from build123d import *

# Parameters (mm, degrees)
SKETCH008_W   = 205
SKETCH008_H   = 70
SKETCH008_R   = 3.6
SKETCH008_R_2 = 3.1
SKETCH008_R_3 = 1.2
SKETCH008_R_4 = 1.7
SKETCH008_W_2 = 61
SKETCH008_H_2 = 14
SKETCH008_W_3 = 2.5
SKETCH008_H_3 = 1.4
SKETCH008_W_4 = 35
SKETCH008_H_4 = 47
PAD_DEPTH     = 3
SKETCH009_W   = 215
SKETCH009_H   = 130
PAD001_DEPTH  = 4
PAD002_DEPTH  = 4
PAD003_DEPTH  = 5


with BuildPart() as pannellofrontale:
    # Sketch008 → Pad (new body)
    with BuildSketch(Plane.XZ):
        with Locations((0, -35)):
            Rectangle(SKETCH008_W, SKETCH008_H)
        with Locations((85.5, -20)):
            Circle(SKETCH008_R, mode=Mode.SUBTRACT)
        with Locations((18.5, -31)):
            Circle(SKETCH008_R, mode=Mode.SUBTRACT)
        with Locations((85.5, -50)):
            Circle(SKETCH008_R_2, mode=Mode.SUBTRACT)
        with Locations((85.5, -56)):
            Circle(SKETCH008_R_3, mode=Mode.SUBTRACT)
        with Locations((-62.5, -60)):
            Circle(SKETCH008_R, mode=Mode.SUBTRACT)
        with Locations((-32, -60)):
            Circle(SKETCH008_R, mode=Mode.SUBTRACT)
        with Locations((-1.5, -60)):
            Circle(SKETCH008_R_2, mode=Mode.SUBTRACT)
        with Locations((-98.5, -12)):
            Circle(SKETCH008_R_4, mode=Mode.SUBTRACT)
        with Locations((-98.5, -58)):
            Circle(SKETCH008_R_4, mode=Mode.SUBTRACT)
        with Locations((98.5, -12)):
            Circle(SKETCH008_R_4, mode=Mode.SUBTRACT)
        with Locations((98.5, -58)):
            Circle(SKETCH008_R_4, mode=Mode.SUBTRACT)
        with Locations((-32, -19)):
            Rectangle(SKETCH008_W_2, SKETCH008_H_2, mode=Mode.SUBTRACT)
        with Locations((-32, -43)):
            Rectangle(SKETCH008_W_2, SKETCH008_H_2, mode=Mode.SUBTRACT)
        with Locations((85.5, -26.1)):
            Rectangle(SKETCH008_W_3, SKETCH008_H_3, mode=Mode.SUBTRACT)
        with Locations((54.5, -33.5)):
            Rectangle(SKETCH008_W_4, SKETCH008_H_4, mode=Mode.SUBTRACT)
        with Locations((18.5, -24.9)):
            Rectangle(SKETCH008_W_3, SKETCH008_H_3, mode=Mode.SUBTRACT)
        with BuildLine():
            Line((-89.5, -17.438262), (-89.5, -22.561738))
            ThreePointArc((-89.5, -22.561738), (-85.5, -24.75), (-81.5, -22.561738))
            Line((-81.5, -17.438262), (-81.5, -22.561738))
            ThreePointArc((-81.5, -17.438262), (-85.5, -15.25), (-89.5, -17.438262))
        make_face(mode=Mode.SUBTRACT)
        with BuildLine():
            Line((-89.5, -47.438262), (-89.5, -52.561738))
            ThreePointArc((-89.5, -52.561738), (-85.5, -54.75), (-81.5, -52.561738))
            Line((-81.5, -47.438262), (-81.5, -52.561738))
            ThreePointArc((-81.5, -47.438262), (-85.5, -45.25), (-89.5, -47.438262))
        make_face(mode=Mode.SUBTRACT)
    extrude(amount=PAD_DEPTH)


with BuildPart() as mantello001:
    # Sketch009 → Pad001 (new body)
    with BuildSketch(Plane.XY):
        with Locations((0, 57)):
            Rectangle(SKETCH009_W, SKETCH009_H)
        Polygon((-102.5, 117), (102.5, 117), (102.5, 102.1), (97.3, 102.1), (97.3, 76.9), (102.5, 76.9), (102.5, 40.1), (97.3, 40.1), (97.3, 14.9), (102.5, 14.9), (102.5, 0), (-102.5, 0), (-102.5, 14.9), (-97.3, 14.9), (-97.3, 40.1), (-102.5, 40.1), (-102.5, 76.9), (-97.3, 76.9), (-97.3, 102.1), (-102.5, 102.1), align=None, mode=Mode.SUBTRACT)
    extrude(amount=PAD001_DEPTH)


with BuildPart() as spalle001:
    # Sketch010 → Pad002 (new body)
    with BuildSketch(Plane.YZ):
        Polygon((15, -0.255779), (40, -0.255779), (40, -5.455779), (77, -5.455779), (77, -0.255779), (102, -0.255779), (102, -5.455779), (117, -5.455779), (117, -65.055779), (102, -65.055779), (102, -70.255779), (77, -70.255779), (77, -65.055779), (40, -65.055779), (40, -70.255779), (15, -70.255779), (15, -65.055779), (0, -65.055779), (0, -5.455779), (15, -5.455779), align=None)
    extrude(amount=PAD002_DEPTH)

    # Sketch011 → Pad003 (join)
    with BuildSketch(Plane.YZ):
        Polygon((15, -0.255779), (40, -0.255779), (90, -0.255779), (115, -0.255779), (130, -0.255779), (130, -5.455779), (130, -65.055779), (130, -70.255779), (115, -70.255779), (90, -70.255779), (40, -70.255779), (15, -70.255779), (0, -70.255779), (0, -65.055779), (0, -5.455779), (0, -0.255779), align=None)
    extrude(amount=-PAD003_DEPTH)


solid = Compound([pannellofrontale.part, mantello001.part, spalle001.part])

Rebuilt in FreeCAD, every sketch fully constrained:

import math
import FreeCAD as App
import Part
import Sketcher

V = App.Vector


def add_polygon(sketch, points):
    """Adds a closed chain of lines whose ends are joined by coincident constraints."""
    first, n = sketch.GeometryCount, len(points)
    for a, b in zip(points, points[1:] + points[:1]):
        sketch.addGeometry(Part.LineSegment(App.Vector(*a, 0), App.Vector(*b, 0)), False)
    for i in range(n):
        sketch.addConstraint(Sketcher.Constraint("Coincident", first + i, 2, first + (i + 1) % n, 1))

doc = App.newDocument("Part")
params = doc.addObject("Spreadsheet::Sheet", "Params")
for row, (alias, value) in enumerate([
    ("sketch1_diameter", "3.4 mm"),
    ("sketch1_diameter2", "7.2 mm"),
    ("sketch1_diameter3", "6.2 mm"),
    ("sketch1_diameter4", "2.4 mm"),
    ("sketch1_width", "205 mm"),
    ("pad1_length", "3 mm"),
    ("sketch2_width", "215 mm"),
    ("sketch2_width2", "205 mm"),
    ("sketch2_height", "130 mm"),
    ("sketch2_width3", "5.2 mm"),
    ("sketch2_height2", "14.9 mm"),
    ("pad2_length", "4 mm"),
    ("sketch3_width", "25 mm"),
    ("sketch3_width2", "15 mm"),
    ("sketch3_width3", "37 mm"),
    ("sketch3_height", "5.2 mm"),
    ("sketch3_height2", "59.6 mm"),
    ("pad3_length", "4 mm"),
    ("sketch4_width", "130 mm"),
    ("sketch4_height", "70 mm"),
    ("pad4_length", "5 mm"),
], start=1):
    params.set(f"A{row}", alias)
    params.set(f"B{row}", "=" + value)
    params.setAlias(f"B{row}", alias)

body = doc.addObject("PartDesign::Body", "Body")

# Sketch on XZ plane
sketch1 = body.newObject("Sketcher::SketchObject", "Sketch")
sketch1.AttachmentSupport = (doc.getObject("XZ_Plane"), [""])
sketch1.MapMode = "FlatFace"
add_polygon(sketch1, [(-102.5, 0), (-102.5, -70), (102.5, -70), (102.5, 0)])  # lines 0-3
sketch1.addGeometry(Part.Circle(V(-98.5, -58, 0), V(0, 0, 1), 1.7), False)  # 4
sketch1.addGeometry(Part.Circle(V(-62.5, -60, 0), V(0, 0, 1), 3.6), False)  # 5
sketch1.addGeometry(Part.Circle(V(-32, -60, 0), V(0, 0, 1), 3.6), False)  # 6
sketch1.addGeometry(Part.Circle(V(-1.5, -60, 0), V(0, 0, 1), 3.1), False)  # 7
sketch1.addGeometry(Part.LineSegment(V(-89.5, -52.561738, 0), V(-89.5, -47.438262, 0)), False)  # 8
sketch1.addGeometry(Part.ArcOfCircle(Part.Circle(V(-85.5, -50, 0), V(0, 0, 1), 4.75), math.radians(32.636904), math.radians(147.363096)), False)  # 9
sketch1.addGeometry(Part.LineSegment(V(-81.5, -47.438262, 0), V(-81.5, -52.561738, 0)), False)  # 10
sketch1.addGeometry(Part.ArcOfCircle(Part.Circle(V(-85.5, -50, 0), V(0, 0, 1), 4.75), math.radians(-147.363096), math.radians(-32.636904)), False)  # 11
add_polygon(sketch1, [(-1.5, -50), (-62.5, -50), (-62.5, -36), (-1.5, -36)])  # lines 12-15
sketch1.addGeometry(Part.Circle(V(98.5, -58, 0), V(0, 0, 1), 1.7), False)  # 16
sketch1.addGeometry(Part.Circle(V(85.5, -56, 0), V(0, 0, 1), 1.2), False)  # 17
sketch1.addGeometry(Part.Circle(V(85.5, -50, 0), V(0, 0, 1), 3.1), False)  # 18
sketch1.addGeometry(Part.LineSegment(V(-89.5, -22.561738, 0), V(-89.5, -17.438262, 0)), False)  # 19
sketch1.addGeometry(Part.ArcOfCircle(Part.Circle(V(-85.5, -20, 0), V(0, 0, 1), 4.75), math.radians(32.636904), math.radians(147.363096)), False)  # 20
sketch1.addGeometry(Part.LineSegment(V(-81.5, -17.438262, 0), V(-81.5, -22.561738, 0)), False)  # 21
sketch1.addGeometry(Part.ArcOfCircle(Part.Circle(V(-85.5, -20, 0), V(0, 0, 1), 4.75), math.radians(-147.363096), math.radians(-32.636904)), False)  # 22
sketch1.addGeometry(Part.Circle(V(-98.5, -12, 0), V(0, 0, 1), 1.7), False)  # 23
add_polygon(sketch1, [(-1.5, -26), (-62.5, -26), (-62.5, -12), (-1.5, -12)])  # lines 24-27
sketch1.addGeometry(Part.Circle(V(18.5, -31, 0), V(0, 0, 1), 3.6), False)  # 28
add_polygon(sketch1, [(19.75, -25.6), (17.25, -25.6), (17.25, -24.2), (19.75, -24.2)])  # lines 29-32
add_polygon(sketch1, [(72, -57), (37, -57), (37, -10), (72, -10)])  # lines 33-36
add_polygon(sketch1, [(86.75, -26.8), (84.25, -26.8), (84.25, -25.4), (86.75, -25.4)])  # lines 37-40
sketch1.addGeometry(Part.Circle(V(85.5, -20, 0), V(0, 0, 1), 3.6), False)  # 41
sketch1.addGeometry(Part.Circle(V(98.5, -12, 0), V(0, 0, 1), 1.7), False)  # 42
sketch1.addConstraint(Sketcher.Constraint("Coincident", 8, 2, 9, 2))
sketch1.addConstraint(Sketcher.Constraint("Coincident", 9, 1, 10, 1))
sketch1.addConstraint(Sketcher.Constraint("Coincident", 10, 2, 11, 2))
sketch1.addConstraint(Sketcher.Constraint("Coincident", 11, 1, 8, 1))
sketch1.addConstraint(Sketcher.Constraint("Coincident", 19, 2, 20, 2))
sketch1.addConstraint(Sketcher.Constraint("Coincident", 20, 1, 21, 1))
sketch1.addConstraint(Sketcher.Constraint("Coincident", 21, 2, 22, 2))
sketch1.addConstraint(Sketcher.Constraint("Coincident", 22, 1, 19, 1))
sketch1.addConstraint(Sketcher.Constraint("Vertical", 0))
sketch1.addConstraint(Sketcher.Constraint("Horizontal", 1))
sketch1.addConstraint(Sketcher.Constraint("Vertical", 2))
sketch1.addConstraint(Sketcher.Constraint("Horizontal", 3))
sketch1.addConstraint(Sketcher.Constraint("Vertical", 8))
sketch1.addConstraint(Sketcher.Constraint("Vertical", 10))
sketch1.addConstraint(Sketcher.Constraint("Horizontal", 12))
sketch1.addConstraint(Sketcher.Constraint("Vertical", 13))
sketch1.addConstraint(Sketcher.Constraint("Horizontal", 14))
sketch1.addConstraint(Sketcher.Constraint("Vertical", 15))
sketch1.addConstraint(Sketcher.Constraint("Vertical", 19))
sketch1.addConstraint(Sketcher.Constraint("Vertical", 21))
sketch1.addConstraint(Sketcher.Constraint("Horizontal", 24))
sketch1.addConstraint(Sketcher.Constraint("Vertical", 25))
sketch1.addConstraint(Sketcher.Constraint("Horizontal", 26))
sketch1.addConstraint(Sketcher.Constraint("Vertical", 27))
sketch1.addConstraint(Sketcher.Constraint("Horizontal", 29))
sketch1.addConstraint(Sketcher.Constraint("Vertical", 30))
sketch1.addConstraint(Sketcher.Constraint("Horizontal", 31))
sketch1.addConstraint(Sketcher.Constraint("Vertical", 32))
sketch1.addConstraint(Sketcher.Constraint("Horizontal", 33))
sketch1.addConstraint(Sketcher.Constraint("Vertical", 34))
sketch1.addConstraint(Sketcher.Constraint("Horizontal", 35))
sketch1.addConstraint(Sketcher.Constraint("Vertical", 36))
sketch1.addConstraint(Sketcher.Constraint("Horizontal", 37))
sketch1.addConstraint(Sketcher.Constraint("Vertical", 38))
sketch1.addConstraint(Sketcher.Constraint("Horizontal", 39))
sketch1.addConstraint(Sketcher.Constraint("Vertical", 40))
sketch1.addConstraint(Sketcher.Constraint("Coincident", 11, 3, 9, 3))
sketch1.addConstraint(Sketcher.Constraint("Coincident", 22, 3, 20, 3))
sketch1.addConstraint(Sketcher.Constraint("Equal", 5, 6))
sketch1.addConstraint(Sketcher.Constraint("Equal", 9, 11))
sketch1.addConstraint(Sketcher.Constraint("Equal", 4, 16))
sketch1.addConstraint(Sketcher.Constraint("Equal", 7, 18))
sketch1.addConstraint(Sketcher.Constraint("Equal", 11, 20))
sketch1.addConstraint(Sketcher.Constraint("Equal", 20, 22))
sketch1.addConstraint(Sketcher.Constraint("Equal", 16, 23))
sketch1.addConstraint(Sketcher.Constraint("Equal", 6, 28))
sketch1.addConstraint(Sketcher.Constraint("Equal", 28, 41))
sketch1.addConstraint(Sketcher.Constraint("Equal", 23, 42))
sketch1.addConstraint(Sketcher.Constraint("Symmetric", 2, 2, 3, 2, -1, 1))
sketch1.addConstraint(Sketcher.Constraint("Symmetric", 4, 3, 16, 3, -2))
sketch1.addConstraint(Sketcher.Constraint("Symmetric", 9, 3, 18, 3, -2))
sketch1.addConstraint(Sketcher.Constraint("Symmetric", 20, 3, 41, 3, -2))
sketch1.addConstraint(Sketcher.Constraint("Symmetric", 23, 3, 42, 3, -2))
sketch1.addConstraint(Sketcher.Constraint("Horizontal", 5, 3, 6, 3))
sketch1.addConstraint(Sketcher.Constraint("Horizontal", 6, 3, 7, 3))
sketch1.addConstraint(Sketcher.Constraint("Horizontal", 8, 2, 9, 1))
sketch1.addConstraint(Sketcher.Constraint("Horizontal", 18, 3, 12, 2))
sketch1.addConstraint(Sketcher.Constraint("Horizontal", 19, 2, 20, 1))
sketch1.addConstraint(Sketcher.Constraint("Horizontal", 42, 3, 25, 2))
sketch1.addConstraint(Sketcher.Constraint("Vertical", 17, 3, 18, 3))
sketch1.addConstraint(Sketcher.Constraint("Vertical", 11, 3, 20, 3))
sketch1.addConstraint(Sketcher.Constraint("Vertical", 4, 3, 23, 3))
sketch1.addConstraint(Sketcher.Constraint("Vertical", 5, 3, 12, 2))
sketch1.addConstraint(Sketcher.Constraint("Vertical", 7, 3, 14, 2))
sketch1.addConstraint(Sketcher.Constraint("Vertical", 11, 1, 19, 2))
sketch1.addConstraint(Sketcher.Constraint("Vertical", 13, 2, 24, 2))
sketch1.addConstraint(Sketcher.Constraint("Vertical", 15, 2, 26, 2))
sketch1.addConstraint(Sketcher.Constraint("Equal", 31, 37))
sketch1.addConstraint(Sketcher.Constraint("Equal", 15, 25))
sketch1.addConstraint(Sketcher.Constraint("Equal", 32, 38))
sketch1.addConstraint(Sketcher.Constraint("Diameter", 4, 3.4))
sketch1.addConstraint(Sketcher.Constraint("Diameter", 5, 7.2))
sketch1.addConstraint(Sketcher.Constraint("Diameter", 7, 6.2))
sketch1.addConstraint(Sketcher.Constraint("Diameter", 17, 2.4))
sketch1.addConstraint(Sketcher.Constraint("DistanceX", 1, 1, 1, 2, 205.0))
sketch1.addConstraint(Sketcher.Constraint("DistanceX", 12, 2, 12, 1, 61.0))
sketch1.addConstraint(Sketcher.Constraint("DistanceX", 33, 2, 33, 1, 35.0))
sketch1.addConstraint(Sketcher.Constraint("DistanceY", 0, 2, 0, 1, 70.0))
sketch1.addConstraint(Sketcher.Constraint("DistanceY", 13, 1, 13, 2, 14.0))
sketch1.addConstraint(Sketcher.Constraint("DistanceY", 34, 1, 34, 2, 47.0))
sketch1.addConstraint(Sketcher.Constraint("Radius", 9, 4.75))
sketch1.addConstraint(Sketcher.Constraint("DistanceX", 29, 2, 29, 1, 2.5))
sketch1.addConstraint(Sketcher.Constraint("DistanceY", 30, 1, 30, 2, 1.4))
sketch1.addConstraint(Sketcher.Constraint("DistanceY", 4, 3, -1, 1, 58.0))
sketch1.addConstraint(Sketcher.Constraint("DistanceY", 5, 3, -1, 1, 60.0))
sketch1.addConstraint(Sketcher.Constraint("DistanceX", 6, 3, -1, 1, 32.0))
sketch1.addConstraint(Sketcher.Constraint("DistanceY", 9, 3, -1, 1, 50.0))
sketch1.addConstraint(Sketcher.Constraint("DistanceY", 17, 3, -1, 1, 56.0))
sketch1.addConstraint(Sketcher.Constraint("DistanceY", 20, 3, -1, 1, 20.0))
sketch1.addConstraint(Sketcher.Constraint("DistanceY", 23, 3, -1, 1, 12.0))
sketch1.addConstraint(Sketcher.Constraint("DistanceY", 28, 3, -1, 1, 31.0))
sketch1.addConstraint(Sketcher.Constraint("DistanceX", -1, 1, 33, 2, 37.0))
sketch1.addConstraint(Sketcher.Constraint("DistanceY", 33, 2, -1, 1, 57.0))
sketch1.addConstraint(Sketcher.Constraint("DistanceX", 4, 3, 5, 3, 36.0))
sketch1.addConstraint(Sketcher.Constraint("DistanceX", 4, 3, 9, 3, 13.0))
sketch1.addConstraint(Sketcher.Constraint("DistanceX", 7, 3, 16, 3, 100.0))
sketch1.addConstraint(Sketcher.Constraint("DistanceX", 7, 3, 28, 3, 20.0))
sketch1.addConstraint(Sketcher.Constraint("DistanceX", 8, 2, 11, 3, 4.0))
sketch1.addConstraint(Sketcher.Constraint("DistanceY", 29, 2, -1, 1, 25.6))
sketch1.addConstraint(Sketcher.Constraint("DistanceY", 37, 2, -1, 1, 26.8))
sketch1.addConstraint(Sketcher.Constraint("DistanceX", -1, 1, 29, 2, 17.25))
sketch1.addConstraint(Sketcher.Constraint("DistanceX", -1, 1, 37, 2, 84.25))
sketch1.setExpression("Constraints[94]", "Params.sketch1_diameter")
sketch1.setExpression("Constraints[95]", "Params.sketch1_diameter2")
sketch1.setExpression("Constraints[96]", "Params.sketch1_diameter3")
sketch1.setExpression("Constraints[97]", "Params.sketch1_diameter4")
sketch1.setExpression("Constraints[98]", "Params.sketch1_width")
pad1 = body.newObject("PartDesign::Pad", "Pad")
pad1.Profile = sketch1
pad1.setExpression("Length", "Params.pad1_length")
body2 = doc.addObject("PartDesign::Body", "Body001")

# Sketch on XY plane
sketch2 = body2.newObject("Sketcher::SketchObject", "Sketch001")
sketch2.AttachmentSupport = (doc.getObject("XY_Plane001"), [""])
sketch2.MapMode = "FlatFace"
add_polygon(sketch2, [(-107.5, 122), (-107.5, -8), (107.5, -8), (107.5, 122)])  # lines 0-3
add_polygon(sketch2, [(-102.5, 102.1), (-102.5, 117), (102.5, 117), (102.5, 102.1), (97.3, 102.1), (97.3, 76.9), (102.5, 76.9), (102.5, 40.1), (97.3, 40.1), (97.3, 14.9), (102.5, 14.9), (102.5, 0), (-102.5, 0), (-102.5, 14.9), (-97.3, 14.9), (-97.3, 40.1), (-102.5, 40.1), (-102.5, 76.9), (-97.3, 76.9), (-97.3, 102.1)])  # lines 4-23
sketch2.addConstraint(Sketcher.Constraint("Vertical", 0))
sketch2.addConstraint(Sketcher.Constraint("Horizontal", 1))
sketch2.addConstraint(Sketcher.Constraint("Vertical", 2))
sketch2.addConstraint(Sketcher.Constraint("Horizontal", 3))
sketch2.addConstraint(Sketcher.Constraint("Vertical", 4))
sketch2.addConstraint(Sketcher.Constraint("Horizontal", 5))
sketch2.addConstraint(Sketcher.Constraint("Vertical", 6))
sketch2.addConstraint(Sketcher.Constraint("Horizontal", 7))
sketch2.addConstraint(Sketcher.Constraint("Vertical", 8))
sketch2.addConstraint(Sketcher.Constraint("Horizontal", 9))
sketch2.addConstraint(Sketcher.Constraint("Vertical", 10))
sketch2.addConstraint(Sketcher.Constraint("Horizontal", 11))
sketch2.addConstraint(Sketcher.Constraint("Vertical", 12))
sketch2.addConstraint(Sketcher.Constraint("Horizontal", 13))
sketch2.addConstraint(Sketcher.Constraint("Vertical", 14))
sketch2.addConstraint(Sketcher.Constraint("Horizontal", 15))
sketch2.addConstraint(Sketcher.Constraint("Vertical", 16))
sketch2.addConstraint(Sketcher.Constraint("Horizontal", 17))
sketch2.addConstraint(Sketcher.Constraint("Vertical", 18))
sketch2.addConstraint(Sketcher.Constraint("Horizontal", 19))
sketch2.addConstraint(Sketcher.Constraint("Vertical", 20))
sketch2.addConstraint(Sketcher.Constraint("Horizontal", 21))
sketch2.addConstraint(Sketcher.Constraint("Vertical", 22))
sketch2.addConstraint(Sketcher.Constraint("Horizontal", 23))
sketch2.addConstraint(Sketcher.Constraint("Symmetric", 14, 2, 15, 2, -1, 1))
sketch2.addConstraint(Sketcher.Constraint("Symmetric", 12, 2, 17, 2, -2))
sketch2.addConstraint(Sketcher.Constraint("Symmetric", 10, 2, 19, 2, -2))
sketch2.addConstraint(Sketcher.Constraint("Symmetric", 8, 2, 21, 2, -2))
sketch2.addConstraint(Sketcher.Constraint("Symmetric", 6, 2, 23, 2, -2))
sketch2.addConstraint(Sketcher.Constraint("Vertical", 6, 2, 9, 2))
sketch2.addConstraint(Sketcher.Constraint("Vertical", 8, 2, 11, 2))
sketch2.addConstraint(Sketcher.Constraint("Vertical", 10, 2, 13, 2))
sketch2.addConstraint(Sketcher.Constraint("Equal", 8, 12))
sketch2.addConstraint(Sketcher.Constraint("Equal", 6, 14))
sketch2.addConstraint(Sketcher.Constraint("DistanceX", 1, 1, 1, 2, 215.0))
sketch2.addConstraint(Sketcher.Constraint("DistanceX", 5, 1, 5, 2, 205.0))
sketch2.addConstraint(Sketcher.Constraint("DistanceY", 0, 2, 0, 1, 130.0))
sketch2.addConstraint(Sketcher.Constraint("DistanceX", 7, 2, 7, 1, 5.2))
sketch2.addConstraint(Sketcher.Constraint("DistanceY", 4, 1, 4, 2, 14.9))
sketch2.addConstraint(Sketcher.Constraint("DistanceY", 8, 2, 8, 1, 25.2))
sketch2.addConstraint(Sketcher.Constraint("DistanceY", 10, 2, 10, 1, 36.8))
sketch2.addConstraint(Sketcher.Constraint("DistanceY", 0, 2, -1, 1, 8.0))
sketch2.addConstraint(Sketcher.Constraint("DistanceX", 3, 2, 4, 2, 5.0))
sketch2.setExpression("Constraints[58]", "Params.sketch2_width")
sketch2.setExpression("Constraints[59]", "Params.sketch2_width2")
sketch2.setExpression("Constraints[60]", "Params.sketch2_height")
sketch2.setExpression("Constraints[61]", "Params.sketch2_width3")
sketch2.setExpression("Constraints[62]", "Params.sketch2_height2")
pad2 = body2.newObject("PartDesign::Pad", "Pad001")
pad2.Profile = sketch2
pad2.setExpression("Length", "Params.pad2_length")
body3 = doc.addObject("PartDesign::Body", "Body002")

# Sketch on YZ plane
sketch3 = body3.newObject("Sketcher::SketchObject", "Sketch002")
sketch3.AttachmentSupport = (doc.getObject("YZ_Plane002"), [""])
sketch3.MapMode = "FlatFace"
add_polygon(sketch3, [(40, -0.255779), (15, -0.255779), (15, -5.455779), (0, -5.455779), (0, -65.055779), (15, -65.055779), (15, -70.255779), (40, -70.255779), (40, -65.055779), (77, -65.055779), (77, -70.255779), (102, -70.255779), (102, -65.055779), (117, -65.055779), (117, -5.455779), (102, -5.455779), (102, -0.255779), (77, -0.255779), (77, -5.455779), (40, -5.455779)])  # lines 0-19
sketch3.addConstraint(Sketcher.Constraint("Horizontal", 0))
sketch3.addConstraint(Sketcher.Constraint("Vertical", 1))
sketch3.addConstraint(Sketcher.Constraint("Horizontal", 2))
sketch3.addConstraint(Sketcher.Constraint("Vertical", 3))
sketch3.addConstraint(Sketcher.Constraint("Horizontal", 4))
sketch3.addConstraint(Sketcher.Constraint("Vertical", 5))
sketch3.addConstraint(Sketcher.Constraint("Horizontal", 6))
sketch3.addConstraint(Sketcher.Constraint("Vertical", 7))
sketch3.addConstraint(Sketcher.Constraint("Horizontal", 8))
sketch3.addConstraint(Sketcher.Constraint("Vertical", 9))
sketch3.addConstraint(Sketcher.Constraint("Horizontal", 10))
sketch3.addConstraint(Sketcher.Constraint("Vertical", 11))
sketch3.addConstraint(Sketcher.Constraint("Horizontal", 12))
sketch3.addConstraint(Sketcher.Constraint("Vertical", 13))
sketch3.addConstraint(Sketcher.Constraint("Horizontal", 14))
sketch3.addConstraint(Sketcher.Constraint("Vertical", 15))
sketch3.addConstraint(Sketcher.Constraint("Horizontal", 16))
sketch3.addConstraint(Sketcher.Constraint("Vertical", 17))
sketch3.addConstraint(Sketcher.Constraint("Horizontal", 18))
sketch3.addConstraint(Sketcher.Constraint("Vertical", 19))
sketch3.addConstraint(Sketcher.Constraint("PointOnObject", 2, 2, -2))
sketch3.addConstraint(Sketcher.Constraint("Horizontal", 4, 2, 7, 2))
sketch3.addConstraint(Sketcher.Constraint("Horizontal", 6, 2, 9, 2))
sketch3.addConstraint(Sketcher.Constraint("Horizontal", 8, 2, 11, 2))
sketch3.addConstraint(Sketcher.Constraint("Horizontal", 2, 2, 13, 2))
sketch3.addConstraint(Sketcher.Constraint("Horizontal", 0, 2, 15, 2))
sketch3.addConstraint(Sketcher.Constraint("Horizontal", 14, 2, 17, 2))
sketch3.addConstraint(Sketcher.Constraint("Vertical", 1, 2, 4, 2))
sketch3.addConstraint(Sketcher.Constraint("Vertical", 11, 2, 14, 2))
sketch3.addConstraint(Sketcher.Constraint("Vertical", 9, 2, 16, 2))
sketch3.addConstraint(Sketcher.Constraint("Vertical", 7, 2, 18, 2))
sketch3.addConstraint(Sketcher.Constraint("Equal", 6, 10))
sketch3.addConstraint(Sketcher.Constraint("Equal", 4, 12))
sketch3.addConstraint(Sketcher.Constraint("Equal", 1, 5))
sketch3.addConstraint(Sketcher.Constraint("DistanceX", 0, 2, 0, 1, 25.0))
sketch3.addConstraint(Sketcher.Constraint("DistanceX", 2, 2, 2, 1, 15.0))
sketch3.addConstraint(Sketcher.Constraint("DistanceX", 8, 1, 8, 2, 37.0))
sketch3.addConstraint(Sketcher.Constraint("DistanceY", 1, 2, 1, 1, 5.2))
sketch3.addConstraint(Sketcher.Constraint("DistanceY", 3, 2, 3, 1, 59.6))
sketch3.addConstraint(Sketcher.Constraint("DistanceY", 0, 2, -1, 1, 0.255779))
sketch3.setExpression("Constraints[54]", "Params.sketch3_width")
sketch3.setExpression("Constraints[55]", "Params.sketch3_width2")
sketch3.setExpression("Constraints[56]", "Params.sketch3_width3")
sketch3.setExpression("Constraints[57]", "Params.sketch3_height")
sketch3.setExpression("Constraints[58]", "Params.sketch3_height2")
pad3 = body3.newObject("PartDesign::Pad", "Pad002")
pad3.Profile = sketch3
pad3.setExpression("Length", "Params.pad3_length")

# Sketch on YZ plane
sketch4 = body3.newObject("Sketcher::SketchObject", "Sketch003")
sketch4.AttachmentSupport = (doc.getObject("YZ_Plane002"), [""])
sketch4.MapMode = "FlatFace"
add_polygon(sketch4, [(130, -0.255779), (0, -0.255779), (0, -70.255779), (130, -70.255779)])  # lines 0-3
sketch4.addConstraint(Sketcher.Constraint("Horizontal", 0))
sketch4.addConstraint(Sketcher.Constraint("Vertical", 1))
sketch4.addConstraint(Sketcher.Constraint("Horizontal", 2))
sketch4.addConstraint(Sketcher.Constraint("Vertical", 3))
sketch4.addConstraint(Sketcher.Constraint("PointOnObject", 0, 2, -2))
sketch4.addConstraint(Sketcher.Constraint("DistanceX", 0, 2, 0, 1, 130.0))
sketch4.addConstraint(Sketcher.Constraint("DistanceY", 1, 2, 1, 1, 70.0))
sketch4.addConstraint(Sketcher.Constraint("DistanceY", 0, 2, -1, 1, 0.255779))
sketch4.setExpression("Constraints[9]", "Params.sketch4_width")
sketch4.setExpression("Constraints[10]", "Params.sketch4_height")
pad4 = body3.newObject("PartDesign::Pad", "Pad003")
pad4.Profile = sketch4
pad4.setExpression("Length", "Params.pad4_length")
pad4.Reversed = True

doc.recompute()
